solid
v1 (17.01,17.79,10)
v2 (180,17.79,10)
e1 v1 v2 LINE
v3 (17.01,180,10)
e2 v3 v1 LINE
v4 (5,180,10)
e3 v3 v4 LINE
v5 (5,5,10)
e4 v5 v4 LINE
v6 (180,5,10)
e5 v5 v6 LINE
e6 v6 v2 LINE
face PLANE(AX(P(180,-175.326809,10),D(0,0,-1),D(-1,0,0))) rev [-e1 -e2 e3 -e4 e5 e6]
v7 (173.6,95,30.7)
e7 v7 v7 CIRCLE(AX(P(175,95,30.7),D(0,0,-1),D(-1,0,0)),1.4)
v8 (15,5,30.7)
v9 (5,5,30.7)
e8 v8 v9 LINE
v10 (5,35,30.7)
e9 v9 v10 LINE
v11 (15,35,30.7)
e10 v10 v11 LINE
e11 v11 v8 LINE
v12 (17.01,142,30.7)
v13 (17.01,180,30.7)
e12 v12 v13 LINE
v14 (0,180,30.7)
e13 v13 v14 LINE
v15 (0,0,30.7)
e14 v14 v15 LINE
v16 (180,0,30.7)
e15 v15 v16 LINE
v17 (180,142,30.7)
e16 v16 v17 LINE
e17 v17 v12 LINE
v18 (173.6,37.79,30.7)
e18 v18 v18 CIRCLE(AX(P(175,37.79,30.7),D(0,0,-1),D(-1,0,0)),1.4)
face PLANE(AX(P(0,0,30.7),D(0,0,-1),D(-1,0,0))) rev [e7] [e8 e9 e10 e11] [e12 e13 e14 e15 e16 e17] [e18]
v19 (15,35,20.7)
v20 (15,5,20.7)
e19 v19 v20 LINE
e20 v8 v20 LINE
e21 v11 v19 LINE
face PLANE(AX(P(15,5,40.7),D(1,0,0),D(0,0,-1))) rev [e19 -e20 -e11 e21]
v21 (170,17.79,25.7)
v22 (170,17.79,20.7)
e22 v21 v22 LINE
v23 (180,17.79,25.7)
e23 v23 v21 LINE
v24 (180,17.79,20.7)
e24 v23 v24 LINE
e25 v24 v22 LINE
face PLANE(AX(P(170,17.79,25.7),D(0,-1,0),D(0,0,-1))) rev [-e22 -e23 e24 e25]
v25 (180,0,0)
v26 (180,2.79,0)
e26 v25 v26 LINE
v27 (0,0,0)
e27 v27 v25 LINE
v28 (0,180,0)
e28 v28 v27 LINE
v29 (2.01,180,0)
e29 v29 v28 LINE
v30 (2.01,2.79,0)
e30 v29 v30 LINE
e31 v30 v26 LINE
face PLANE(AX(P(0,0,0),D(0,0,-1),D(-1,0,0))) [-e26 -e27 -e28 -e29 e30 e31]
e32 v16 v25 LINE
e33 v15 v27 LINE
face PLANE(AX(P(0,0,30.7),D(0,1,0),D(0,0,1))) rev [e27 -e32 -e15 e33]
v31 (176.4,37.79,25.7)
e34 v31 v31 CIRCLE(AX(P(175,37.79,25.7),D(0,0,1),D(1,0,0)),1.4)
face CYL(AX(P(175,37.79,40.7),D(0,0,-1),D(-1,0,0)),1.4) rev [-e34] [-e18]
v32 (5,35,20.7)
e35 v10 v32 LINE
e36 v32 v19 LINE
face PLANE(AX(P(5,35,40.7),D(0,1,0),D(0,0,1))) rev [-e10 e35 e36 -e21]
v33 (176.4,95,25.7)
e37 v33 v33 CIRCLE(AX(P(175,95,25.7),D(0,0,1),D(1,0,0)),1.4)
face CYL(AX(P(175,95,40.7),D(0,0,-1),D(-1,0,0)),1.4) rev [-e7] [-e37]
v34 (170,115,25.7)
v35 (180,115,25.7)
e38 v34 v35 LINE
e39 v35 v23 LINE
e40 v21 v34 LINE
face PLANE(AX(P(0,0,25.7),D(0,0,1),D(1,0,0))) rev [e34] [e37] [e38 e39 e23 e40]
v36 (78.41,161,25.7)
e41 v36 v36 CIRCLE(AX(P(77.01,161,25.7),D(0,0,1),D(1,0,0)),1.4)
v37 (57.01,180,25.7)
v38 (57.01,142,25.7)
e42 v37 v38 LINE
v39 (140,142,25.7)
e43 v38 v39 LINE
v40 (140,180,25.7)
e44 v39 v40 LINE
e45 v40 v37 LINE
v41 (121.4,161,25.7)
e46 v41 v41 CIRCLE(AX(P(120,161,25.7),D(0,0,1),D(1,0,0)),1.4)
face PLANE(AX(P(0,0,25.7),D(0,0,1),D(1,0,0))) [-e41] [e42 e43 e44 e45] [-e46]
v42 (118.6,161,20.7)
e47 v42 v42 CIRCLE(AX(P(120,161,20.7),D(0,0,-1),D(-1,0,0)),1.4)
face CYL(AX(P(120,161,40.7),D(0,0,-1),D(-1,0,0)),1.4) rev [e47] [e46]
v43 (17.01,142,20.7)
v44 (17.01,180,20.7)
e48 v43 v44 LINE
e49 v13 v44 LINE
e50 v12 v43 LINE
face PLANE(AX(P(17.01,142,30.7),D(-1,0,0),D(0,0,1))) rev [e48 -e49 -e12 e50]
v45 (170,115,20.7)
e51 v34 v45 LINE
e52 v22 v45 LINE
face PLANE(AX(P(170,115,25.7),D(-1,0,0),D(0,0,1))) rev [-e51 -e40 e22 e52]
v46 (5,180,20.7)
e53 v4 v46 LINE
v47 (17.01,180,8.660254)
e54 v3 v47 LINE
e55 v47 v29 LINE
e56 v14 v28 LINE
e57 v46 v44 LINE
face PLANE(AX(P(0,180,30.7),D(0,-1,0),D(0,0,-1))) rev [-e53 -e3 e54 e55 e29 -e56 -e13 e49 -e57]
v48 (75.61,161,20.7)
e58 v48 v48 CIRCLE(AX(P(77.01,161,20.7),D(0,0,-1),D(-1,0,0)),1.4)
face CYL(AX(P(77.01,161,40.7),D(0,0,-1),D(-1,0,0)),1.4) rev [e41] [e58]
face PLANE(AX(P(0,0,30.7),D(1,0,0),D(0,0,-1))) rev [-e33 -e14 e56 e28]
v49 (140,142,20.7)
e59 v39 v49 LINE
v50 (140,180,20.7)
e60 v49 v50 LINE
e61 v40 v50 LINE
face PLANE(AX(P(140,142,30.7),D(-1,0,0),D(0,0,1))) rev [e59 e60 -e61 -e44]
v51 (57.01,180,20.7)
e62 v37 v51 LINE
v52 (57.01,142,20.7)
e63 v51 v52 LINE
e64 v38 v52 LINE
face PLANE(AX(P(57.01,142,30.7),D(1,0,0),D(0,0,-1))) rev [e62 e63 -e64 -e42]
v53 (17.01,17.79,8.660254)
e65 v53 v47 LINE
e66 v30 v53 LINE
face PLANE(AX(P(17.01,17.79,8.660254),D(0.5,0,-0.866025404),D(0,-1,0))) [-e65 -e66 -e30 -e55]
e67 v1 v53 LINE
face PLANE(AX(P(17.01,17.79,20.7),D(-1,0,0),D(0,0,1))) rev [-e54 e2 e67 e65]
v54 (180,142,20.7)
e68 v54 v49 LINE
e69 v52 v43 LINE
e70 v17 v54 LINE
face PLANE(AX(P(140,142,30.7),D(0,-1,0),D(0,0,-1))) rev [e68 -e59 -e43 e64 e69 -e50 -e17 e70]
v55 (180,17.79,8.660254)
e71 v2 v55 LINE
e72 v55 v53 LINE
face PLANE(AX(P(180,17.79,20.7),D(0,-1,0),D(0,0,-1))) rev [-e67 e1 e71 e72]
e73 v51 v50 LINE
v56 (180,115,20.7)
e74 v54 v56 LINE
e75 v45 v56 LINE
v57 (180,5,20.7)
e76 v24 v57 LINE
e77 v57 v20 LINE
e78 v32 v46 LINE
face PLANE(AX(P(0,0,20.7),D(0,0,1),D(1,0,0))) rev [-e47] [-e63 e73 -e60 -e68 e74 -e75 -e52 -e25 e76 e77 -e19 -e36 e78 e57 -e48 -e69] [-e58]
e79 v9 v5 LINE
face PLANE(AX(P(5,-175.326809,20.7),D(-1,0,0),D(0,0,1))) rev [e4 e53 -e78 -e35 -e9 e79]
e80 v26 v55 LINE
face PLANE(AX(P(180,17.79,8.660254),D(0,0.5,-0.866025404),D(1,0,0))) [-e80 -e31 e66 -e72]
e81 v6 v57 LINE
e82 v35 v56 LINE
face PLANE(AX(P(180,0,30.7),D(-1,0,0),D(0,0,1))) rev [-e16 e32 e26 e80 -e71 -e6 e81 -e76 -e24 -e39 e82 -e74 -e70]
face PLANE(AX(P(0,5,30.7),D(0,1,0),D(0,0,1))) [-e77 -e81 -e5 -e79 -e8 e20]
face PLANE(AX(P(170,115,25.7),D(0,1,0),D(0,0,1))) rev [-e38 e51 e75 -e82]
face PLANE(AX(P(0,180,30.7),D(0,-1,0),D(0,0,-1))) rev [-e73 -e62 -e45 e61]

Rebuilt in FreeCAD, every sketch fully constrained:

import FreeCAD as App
import Part
import Sketcher

V = App.Vector


def edges_at(feature, points):
    """Names of the edges that pass closest to the given points."""
    edges = feature.Shape.Edges
    near = lambda p: min(range(len(edges)), key=lambda i: edges[i].distToShape(Part.Vertex(*p))[0])
    return sorted({f"Edge{near(p) + 1}" for p in points})


def add_polygon(sketch, points):
    """Adds a closed chain of lines whose ends are joined by coincident constraints."""
    first, n = sketch.GeometryCount, len(points)
    for a, b in zip(points, points[1:] + points[:1]):
        sketch.addGeometry(Part.LineSegment(App.Vector(*a, 0), App.Vector(*b, 0)), False)
    for i in range(n):
        sketch.addConstraint(Sketcher.Constraint("Coincident", first + i, 2, first + (i + 1) % n, 1))

doc = App.newDocument("Part")
body = doc.addObject("PartDesign::Body", "Body")

sketch1 = body.newObject("Sketcher::SketchObject", "Sketch")
sketch1.AttachmentSupport = (doc.getObject("XY_Plane"), [""])
sketch1.MapMode = "FlatFace"
add_polygon(sketch1, [(0, 180), (0, 0), (180, 0), (180, 180)])
sketch1.addConstraint(Sketcher.Constraint("Vertical", 0))
sketch1.addConstraint(Sketcher.Constraint("Horizontal", 1))
sketch1.addConstraint(Sketcher.Constraint("Vertical", 2))
sketch1.addConstraint(Sketcher.Constraint("Horizontal", 3))
sketch1.addConstraint(Sketcher.Constraint("Coincident", 0, 2, -1, 1))
sketch1.addConstraint(Sketcher.Constraint("Equal", 3, 0))
sketch1.addConstraint(Sketcher.Constraint("DistanceX", 1, 1, 1, 2, 180.0))
pad1 = body.newObject("PartDesign::Pad", "Pad")
pad1.Profile = sketch1
pad1.Length = 30.7

sketch2 = body.newObject("Sketcher::SketchObject", "Sketch001")
sketch2.AttachmentSupport = (doc.getObject("XY_Plane"), [""])
sketch2.MapMode = "FlatFace"
add_polygon(sketch2, [(180, 180), (180, 18), (17, 18), (17, 180)])
sketch2.addConstraint(Sketcher.Constraint("Vertical", 0))
sketch2.addConstraint(Sketcher.Constraint("Horizontal", 1))
sketch2.addConstraint(Sketcher.Constraint("Vertical", 2))
sketch2.addConstraint(Sketcher.Constraint("Horizontal", 3))
sketch2.addConstraint(Sketcher.Constraint("DistanceX", -1, 1, 0, 2, 180.0))
sketch2.addConstraint(Sketcher.Constraint("DistanceY", -1, 1, 2, 2, 180.0))
sketch2.addConstraint(Sketcher.Constraint("DistanceX", 1, 2, 1, 1, 162.99))
sketch2.addConstraint(Sketcher.Constraint("DistanceY", 0, 2, 0, 1, 162.21))
pocket1 = body.newObject("PartDesign::Pocket", "Pocket")
pocket1.Profile = sketch2
pocket1.Length = 20.7
pocket1.Reversed = True

sketch3 = body.newObject("Sketcher::SketchObject", "Sketch002")
sketch3.AttachmentSupport = (doc.getObject("XZ_Plane"), [""])
sketch3.MapMode = "FlatFace"
sketch3.AttachmentOffset = App.Placement(V(0, 0, -180), App.Rotation())
add_polygon(sketch3, [(5, 10), (5, 21), (180, 21), (180, 10)])
sketch3.addConstraint(Sketcher.Constraint("Vertical", 0))
sketch3.addConstraint(Sketcher.Constraint("Horizontal", 1))
sketch3.addConstraint(Sketcher.Constraint("Vertical", 2))
sketch3.addConstraint(Sketcher.Constraint("Horizontal", 3))
sketch3.addConstraint(Sketcher.Constraint("DistanceX", 1, 1, 1, 2, 175.0))
sketch3.addConstraint(Sketcher.Constraint("DistanceY", 0, 1, 0, 2, 10.7))
sketch3.addConstraint(Sketcher.Constraint("DistanceX", -1, 1, 0, 2, 5.0))
sketch3.addConstraint(Sketcher.Constraint("DistanceY", -1, 1, 2, 2, 10.0))
pocket2 = body.newObject("PartDesign::Pocket", "Pocket001")
pocket2.Profile = sketch3
pocket2.Length = 175
pocket2.Reversed = True

sketch4 = body.newObject("Sketcher::SketchObject", "Sketch003")
sketch4.AttachmentSupport = (doc.getObject("XY_Plane"), [""])
sketch4.MapMode = "FlatFace"
sketch4.AttachmentOffset = App.Placement(V(0, 0, 20.7), App.Rotation())
add_polygon(sketch4, [(180, 180), (180, 142), (140, 142), (140, 180)])
add_polygon(sketch4, [(57, 180), (57, 142), (17, 142), (17, 180)])
sketch4.addConstraint(Sketcher.Constraint("Vertical", 0))
sketch4.addConstraint(Sketcher.Constraint("Horizontal", 1))
sketch4.addConstraint(Sketcher.Constraint("Vertical", 2))
sketch4.addConstraint(Sketcher.Constraint("Horizontal", 3))
sketch4.addConstraint(Sketcher.Constraint("Vertical", 4))
sketch4.addConstraint(Sketcher.Constraint("Horizontal", 5))
sketch4.addConstraint(Sketcher.Constraint("Vertical", 6))
sketch4.addConstraint(Sketcher.Constraint("Horizontal", 7))
sketch4.addConstraint(Sketcher.Constraint("Horizontal", 1, 2, 4, 2))
sketch4.addConstraint(Sketcher.Constraint("Horizontal", 3, 2, 6, 2))
sketch4.addConstraint(Sketcher.Constraint("Equal", 3, 5))
sketch4.addConstraint(Sketcher.Constraint("DistanceX", 1, 2, 1, 1, 40.0))
sketch4.addConstraint(Sketcher.Constraint("DistanceY", 0, 2, 0, 1, 38.0))
sketch4.addConstraint(Sketcher.Constraint("DistanceX", -1, 1, 0, 2, 180.0))
sketch4.addConstraint(Sketcher.Constraint("DistanceY", -1, 1, 0, 2, 142.0))
sketch4.addConstraint(Sketcher.Constraint("DistanceX", -1, 1, 4, 2, 57.01))
pocket3 = body.newObject("PartDesign::Pocket", "Pocket002")
pocket3.Profile = sketch4
pocket3.Length = 10
pocket3.Reversed = True

sketch5 = body.newObject("Sketcher::SketchObject", "Sketch004")
sketch5.AttachmentSupport = (doc.getObject("XY_Plane"), [""])
sketch5.MapMode = "FlatFace"
sketch5.AttachmentOffset = App.Placement(V(0, 0, 30.7), App.Rotation())
add_polygon(sketch5, [(57, 180), (57, 142), (140, 142), (140, 180)])
sketch5.addConstraint(Sketcher.Constraint("Vertical", 0))
sketch5.addConstraint(Sketcher.Constraint("Horizontal", 1))
sketch5.addConstraint(Sketcher.Constraint("Vertical", 2))
sketch5.addConstraint(Sketcher.Constraint("Horizontal", 3))
sketch5.addConstraint(Sketcher.Constraint("DistanceY", 0, 2, 0, 1, 38.0))
sketch5.addConstraint(Sketcher.Constraint("DistanceY", -1, 1, 0, 2, 142.0))
sketch5.addConstraint(Sketcher.Constraint("DistanceX", -1, 1, 1, 2, 140.0))
sketch5.addConstraint(Sketcher.Constraint("DistanceX", 1, 1, 1, 2, 82.99))
pocket4 = body.newObject("PartDesign::Pocket", "Pocket003")
pocket4.Profile = sketch5
pocket4.Length = 5

sketch6 = body.newObject("Sketcher::SketchObject", "Sketch005")
sketch6.AttachmentSupport = (doc.getObject("XY_Plane"), [""])
sketch6.MapMode = "FlatFace"
sketch6.AttachmentOffset = App.Placement(V(0, 0, 20.7), App.Rotation())
add_polygon(sketch6, [(180, 115), (180, 18), (170, 18), (170, 115)])
sketch6.addConstraint(Sketcher.Constraint("Vertical", 0))
sketch6.addConstraint(Sketcher.Constraint("Horizontal", 1))
sketch6.addConstraint(Sketcher.Constraint("Vertical", 2))
sketch6.addConstraint(Sketcher.Constraint("Horizontal", 3))
sketch6.addConstraint(Sketcher.Constraint("DistanceX", 1, 2, 1, 1, 10.0))
sketch6.addConstraint(Sketcher.Constraint("DistanceX", -1, 1, 0, 2, 180.0))
sketch6.addConstraint(Sketcher.Constraint("DistanceY", -1, 1, 2, 2, 115.0))
sketch6.addConstraint(Sketcher.Constraint("DistanceY", 0, 2, 0, 1, 97.21))
pocket5 = body.newObject("PartDesign::Pocket", "Pocket004")
pocket5.Profile = sketch6
pocket5.Length = 5
pocket5.Reversed = True

sketch7 = body.newObject("Sketcher::SketchObject", "Sketch006")
sketch7.AttachmentSupport = (doc.getObject("XY_Plane"), [""])
sketch7.MapMode = "FlatFace"
sketch7.AttachmentOffset = App.Placement(V(0, 0, 20.7), App.Rotation())
add_polygon(sketch7, [(15, 35), (15, 5), (5, 5), (5, 35)])
sketch7.addConstraint(Sketcher.Constraint("Vertical", 0))
sketch7.addConstraint(Sketcher.Constraint("Horizontal", 1))
sketch7.addConstraint(Sketcher.Constraint("Vertical", 2))
sketch7.addConstraint(Sketcher.Constraint("Horizontal", 3))
sketch7.addConstraint(Sketcher.Constraint("DistanceX", 1, 2, 1, 1, 10.0))
sketch7.addConstraint(Sketcher.Constraint("DistanceY", 0, 2, 0, 1, 30.0))
sketch7.addConstraint(Sketcher.Constraint("DistanceX", -1, 1, 0, 2, 15.0))
sketch7.addConstraint(Sketcher.Constraint("DistanceY", -1, 1, 0, 2, 5.0))
pocket6 = body.newObject("PartDesign::Pocket", "Pocket005")
pocket6.Profile = sketch7
pocket6.Length = 20
pocket6.Reversed = True

sketch8 = body.newObject("Sketcher::SketchObject", "Sketch007")
sketch8.AttachmentSupport = (doc.getObject("XY_Plane"), [""])
sketch8.MapMode = "FlatFace"
sketch8.AttachmentOffset = App.Placement(V(0, 0, 20.7), App.Rotation())
sketch8.addGeometry(Part.Circle(V(120, 161, 0), V(0, 0, 1), 1.4), False)
sketch8.addGeometry(Part.Circle(V(77, 161, 0), V(0, 0, 1), 1.4), False)
sketch8.addGeometry(Part.Circle(V(175, 95, 0), V(0, 0, 1), 1.4), False)
sketch8.addGeometry(Part.Circle(V(175, 37.8, 0), V(0, 0, 1), 1.4), False)
sketch8.addConstraint(Sketcher.Constraint("Equal", 0, 1))
sketch8.addConstraint(Sketcher.Constraint("Equal", 1, 2))
sketch8.addConstraint(Sketcher.Constraint("Equal", 2, 3))
sketch8.addConstraint(Sketcher.Constraint("Horizontal", 0, 3, 1, 3))
sketch8.addConstraint(Sketcher.Constraint("Vertical", 2, 3, 3, 3))
sketch8.addConstraint(Sketcher.Constraint("Diameter", 0, 2.8))
sketch8.addConstraint(Sketcher.Constraint("DistanceX", -1, 1, 0, 3, 120.0))
sketch8.addConstraint(Sketcher.Constraint("DistanceY", -1, 1, 0, 3, 161.0))
sketch8.addConstraint(Sketcher.Constraint("DistanceX", -1, 1, 2, 3, 175.0))
sketch8.addConstraint(Sketcher.Constraint("DistanceY", -1, 1, 2, 3, 95.0))
sketch8.addConstraint(Sketcher.Constraint("DistanceX", -1, 1, 1, 3, 77.01))
sketch8.addConstraint(Sketcher.Constraint("DistanceY", -1, 1, 3, 3, 37.79))
pocket7 = body.newObject("PartDesign::Pocket", "Pocket006")
pocket7.Profile = sketch8
pocket7.Length = 20
pocket7.Reversed = True
doc.recompute()

chamfer = body.newObject("PartDesign::Chamfer", "Chamfer")
chamfer.Base = (pocket7, edges_at(pocket7, [(98.505, 17.79, 0), (17.01, 98.895, 0)]))
chamfer.ChamferType = "Two distances"
chamfer.Size = 15
chamfer.Size2 = 8.660254

doc.recompute()
